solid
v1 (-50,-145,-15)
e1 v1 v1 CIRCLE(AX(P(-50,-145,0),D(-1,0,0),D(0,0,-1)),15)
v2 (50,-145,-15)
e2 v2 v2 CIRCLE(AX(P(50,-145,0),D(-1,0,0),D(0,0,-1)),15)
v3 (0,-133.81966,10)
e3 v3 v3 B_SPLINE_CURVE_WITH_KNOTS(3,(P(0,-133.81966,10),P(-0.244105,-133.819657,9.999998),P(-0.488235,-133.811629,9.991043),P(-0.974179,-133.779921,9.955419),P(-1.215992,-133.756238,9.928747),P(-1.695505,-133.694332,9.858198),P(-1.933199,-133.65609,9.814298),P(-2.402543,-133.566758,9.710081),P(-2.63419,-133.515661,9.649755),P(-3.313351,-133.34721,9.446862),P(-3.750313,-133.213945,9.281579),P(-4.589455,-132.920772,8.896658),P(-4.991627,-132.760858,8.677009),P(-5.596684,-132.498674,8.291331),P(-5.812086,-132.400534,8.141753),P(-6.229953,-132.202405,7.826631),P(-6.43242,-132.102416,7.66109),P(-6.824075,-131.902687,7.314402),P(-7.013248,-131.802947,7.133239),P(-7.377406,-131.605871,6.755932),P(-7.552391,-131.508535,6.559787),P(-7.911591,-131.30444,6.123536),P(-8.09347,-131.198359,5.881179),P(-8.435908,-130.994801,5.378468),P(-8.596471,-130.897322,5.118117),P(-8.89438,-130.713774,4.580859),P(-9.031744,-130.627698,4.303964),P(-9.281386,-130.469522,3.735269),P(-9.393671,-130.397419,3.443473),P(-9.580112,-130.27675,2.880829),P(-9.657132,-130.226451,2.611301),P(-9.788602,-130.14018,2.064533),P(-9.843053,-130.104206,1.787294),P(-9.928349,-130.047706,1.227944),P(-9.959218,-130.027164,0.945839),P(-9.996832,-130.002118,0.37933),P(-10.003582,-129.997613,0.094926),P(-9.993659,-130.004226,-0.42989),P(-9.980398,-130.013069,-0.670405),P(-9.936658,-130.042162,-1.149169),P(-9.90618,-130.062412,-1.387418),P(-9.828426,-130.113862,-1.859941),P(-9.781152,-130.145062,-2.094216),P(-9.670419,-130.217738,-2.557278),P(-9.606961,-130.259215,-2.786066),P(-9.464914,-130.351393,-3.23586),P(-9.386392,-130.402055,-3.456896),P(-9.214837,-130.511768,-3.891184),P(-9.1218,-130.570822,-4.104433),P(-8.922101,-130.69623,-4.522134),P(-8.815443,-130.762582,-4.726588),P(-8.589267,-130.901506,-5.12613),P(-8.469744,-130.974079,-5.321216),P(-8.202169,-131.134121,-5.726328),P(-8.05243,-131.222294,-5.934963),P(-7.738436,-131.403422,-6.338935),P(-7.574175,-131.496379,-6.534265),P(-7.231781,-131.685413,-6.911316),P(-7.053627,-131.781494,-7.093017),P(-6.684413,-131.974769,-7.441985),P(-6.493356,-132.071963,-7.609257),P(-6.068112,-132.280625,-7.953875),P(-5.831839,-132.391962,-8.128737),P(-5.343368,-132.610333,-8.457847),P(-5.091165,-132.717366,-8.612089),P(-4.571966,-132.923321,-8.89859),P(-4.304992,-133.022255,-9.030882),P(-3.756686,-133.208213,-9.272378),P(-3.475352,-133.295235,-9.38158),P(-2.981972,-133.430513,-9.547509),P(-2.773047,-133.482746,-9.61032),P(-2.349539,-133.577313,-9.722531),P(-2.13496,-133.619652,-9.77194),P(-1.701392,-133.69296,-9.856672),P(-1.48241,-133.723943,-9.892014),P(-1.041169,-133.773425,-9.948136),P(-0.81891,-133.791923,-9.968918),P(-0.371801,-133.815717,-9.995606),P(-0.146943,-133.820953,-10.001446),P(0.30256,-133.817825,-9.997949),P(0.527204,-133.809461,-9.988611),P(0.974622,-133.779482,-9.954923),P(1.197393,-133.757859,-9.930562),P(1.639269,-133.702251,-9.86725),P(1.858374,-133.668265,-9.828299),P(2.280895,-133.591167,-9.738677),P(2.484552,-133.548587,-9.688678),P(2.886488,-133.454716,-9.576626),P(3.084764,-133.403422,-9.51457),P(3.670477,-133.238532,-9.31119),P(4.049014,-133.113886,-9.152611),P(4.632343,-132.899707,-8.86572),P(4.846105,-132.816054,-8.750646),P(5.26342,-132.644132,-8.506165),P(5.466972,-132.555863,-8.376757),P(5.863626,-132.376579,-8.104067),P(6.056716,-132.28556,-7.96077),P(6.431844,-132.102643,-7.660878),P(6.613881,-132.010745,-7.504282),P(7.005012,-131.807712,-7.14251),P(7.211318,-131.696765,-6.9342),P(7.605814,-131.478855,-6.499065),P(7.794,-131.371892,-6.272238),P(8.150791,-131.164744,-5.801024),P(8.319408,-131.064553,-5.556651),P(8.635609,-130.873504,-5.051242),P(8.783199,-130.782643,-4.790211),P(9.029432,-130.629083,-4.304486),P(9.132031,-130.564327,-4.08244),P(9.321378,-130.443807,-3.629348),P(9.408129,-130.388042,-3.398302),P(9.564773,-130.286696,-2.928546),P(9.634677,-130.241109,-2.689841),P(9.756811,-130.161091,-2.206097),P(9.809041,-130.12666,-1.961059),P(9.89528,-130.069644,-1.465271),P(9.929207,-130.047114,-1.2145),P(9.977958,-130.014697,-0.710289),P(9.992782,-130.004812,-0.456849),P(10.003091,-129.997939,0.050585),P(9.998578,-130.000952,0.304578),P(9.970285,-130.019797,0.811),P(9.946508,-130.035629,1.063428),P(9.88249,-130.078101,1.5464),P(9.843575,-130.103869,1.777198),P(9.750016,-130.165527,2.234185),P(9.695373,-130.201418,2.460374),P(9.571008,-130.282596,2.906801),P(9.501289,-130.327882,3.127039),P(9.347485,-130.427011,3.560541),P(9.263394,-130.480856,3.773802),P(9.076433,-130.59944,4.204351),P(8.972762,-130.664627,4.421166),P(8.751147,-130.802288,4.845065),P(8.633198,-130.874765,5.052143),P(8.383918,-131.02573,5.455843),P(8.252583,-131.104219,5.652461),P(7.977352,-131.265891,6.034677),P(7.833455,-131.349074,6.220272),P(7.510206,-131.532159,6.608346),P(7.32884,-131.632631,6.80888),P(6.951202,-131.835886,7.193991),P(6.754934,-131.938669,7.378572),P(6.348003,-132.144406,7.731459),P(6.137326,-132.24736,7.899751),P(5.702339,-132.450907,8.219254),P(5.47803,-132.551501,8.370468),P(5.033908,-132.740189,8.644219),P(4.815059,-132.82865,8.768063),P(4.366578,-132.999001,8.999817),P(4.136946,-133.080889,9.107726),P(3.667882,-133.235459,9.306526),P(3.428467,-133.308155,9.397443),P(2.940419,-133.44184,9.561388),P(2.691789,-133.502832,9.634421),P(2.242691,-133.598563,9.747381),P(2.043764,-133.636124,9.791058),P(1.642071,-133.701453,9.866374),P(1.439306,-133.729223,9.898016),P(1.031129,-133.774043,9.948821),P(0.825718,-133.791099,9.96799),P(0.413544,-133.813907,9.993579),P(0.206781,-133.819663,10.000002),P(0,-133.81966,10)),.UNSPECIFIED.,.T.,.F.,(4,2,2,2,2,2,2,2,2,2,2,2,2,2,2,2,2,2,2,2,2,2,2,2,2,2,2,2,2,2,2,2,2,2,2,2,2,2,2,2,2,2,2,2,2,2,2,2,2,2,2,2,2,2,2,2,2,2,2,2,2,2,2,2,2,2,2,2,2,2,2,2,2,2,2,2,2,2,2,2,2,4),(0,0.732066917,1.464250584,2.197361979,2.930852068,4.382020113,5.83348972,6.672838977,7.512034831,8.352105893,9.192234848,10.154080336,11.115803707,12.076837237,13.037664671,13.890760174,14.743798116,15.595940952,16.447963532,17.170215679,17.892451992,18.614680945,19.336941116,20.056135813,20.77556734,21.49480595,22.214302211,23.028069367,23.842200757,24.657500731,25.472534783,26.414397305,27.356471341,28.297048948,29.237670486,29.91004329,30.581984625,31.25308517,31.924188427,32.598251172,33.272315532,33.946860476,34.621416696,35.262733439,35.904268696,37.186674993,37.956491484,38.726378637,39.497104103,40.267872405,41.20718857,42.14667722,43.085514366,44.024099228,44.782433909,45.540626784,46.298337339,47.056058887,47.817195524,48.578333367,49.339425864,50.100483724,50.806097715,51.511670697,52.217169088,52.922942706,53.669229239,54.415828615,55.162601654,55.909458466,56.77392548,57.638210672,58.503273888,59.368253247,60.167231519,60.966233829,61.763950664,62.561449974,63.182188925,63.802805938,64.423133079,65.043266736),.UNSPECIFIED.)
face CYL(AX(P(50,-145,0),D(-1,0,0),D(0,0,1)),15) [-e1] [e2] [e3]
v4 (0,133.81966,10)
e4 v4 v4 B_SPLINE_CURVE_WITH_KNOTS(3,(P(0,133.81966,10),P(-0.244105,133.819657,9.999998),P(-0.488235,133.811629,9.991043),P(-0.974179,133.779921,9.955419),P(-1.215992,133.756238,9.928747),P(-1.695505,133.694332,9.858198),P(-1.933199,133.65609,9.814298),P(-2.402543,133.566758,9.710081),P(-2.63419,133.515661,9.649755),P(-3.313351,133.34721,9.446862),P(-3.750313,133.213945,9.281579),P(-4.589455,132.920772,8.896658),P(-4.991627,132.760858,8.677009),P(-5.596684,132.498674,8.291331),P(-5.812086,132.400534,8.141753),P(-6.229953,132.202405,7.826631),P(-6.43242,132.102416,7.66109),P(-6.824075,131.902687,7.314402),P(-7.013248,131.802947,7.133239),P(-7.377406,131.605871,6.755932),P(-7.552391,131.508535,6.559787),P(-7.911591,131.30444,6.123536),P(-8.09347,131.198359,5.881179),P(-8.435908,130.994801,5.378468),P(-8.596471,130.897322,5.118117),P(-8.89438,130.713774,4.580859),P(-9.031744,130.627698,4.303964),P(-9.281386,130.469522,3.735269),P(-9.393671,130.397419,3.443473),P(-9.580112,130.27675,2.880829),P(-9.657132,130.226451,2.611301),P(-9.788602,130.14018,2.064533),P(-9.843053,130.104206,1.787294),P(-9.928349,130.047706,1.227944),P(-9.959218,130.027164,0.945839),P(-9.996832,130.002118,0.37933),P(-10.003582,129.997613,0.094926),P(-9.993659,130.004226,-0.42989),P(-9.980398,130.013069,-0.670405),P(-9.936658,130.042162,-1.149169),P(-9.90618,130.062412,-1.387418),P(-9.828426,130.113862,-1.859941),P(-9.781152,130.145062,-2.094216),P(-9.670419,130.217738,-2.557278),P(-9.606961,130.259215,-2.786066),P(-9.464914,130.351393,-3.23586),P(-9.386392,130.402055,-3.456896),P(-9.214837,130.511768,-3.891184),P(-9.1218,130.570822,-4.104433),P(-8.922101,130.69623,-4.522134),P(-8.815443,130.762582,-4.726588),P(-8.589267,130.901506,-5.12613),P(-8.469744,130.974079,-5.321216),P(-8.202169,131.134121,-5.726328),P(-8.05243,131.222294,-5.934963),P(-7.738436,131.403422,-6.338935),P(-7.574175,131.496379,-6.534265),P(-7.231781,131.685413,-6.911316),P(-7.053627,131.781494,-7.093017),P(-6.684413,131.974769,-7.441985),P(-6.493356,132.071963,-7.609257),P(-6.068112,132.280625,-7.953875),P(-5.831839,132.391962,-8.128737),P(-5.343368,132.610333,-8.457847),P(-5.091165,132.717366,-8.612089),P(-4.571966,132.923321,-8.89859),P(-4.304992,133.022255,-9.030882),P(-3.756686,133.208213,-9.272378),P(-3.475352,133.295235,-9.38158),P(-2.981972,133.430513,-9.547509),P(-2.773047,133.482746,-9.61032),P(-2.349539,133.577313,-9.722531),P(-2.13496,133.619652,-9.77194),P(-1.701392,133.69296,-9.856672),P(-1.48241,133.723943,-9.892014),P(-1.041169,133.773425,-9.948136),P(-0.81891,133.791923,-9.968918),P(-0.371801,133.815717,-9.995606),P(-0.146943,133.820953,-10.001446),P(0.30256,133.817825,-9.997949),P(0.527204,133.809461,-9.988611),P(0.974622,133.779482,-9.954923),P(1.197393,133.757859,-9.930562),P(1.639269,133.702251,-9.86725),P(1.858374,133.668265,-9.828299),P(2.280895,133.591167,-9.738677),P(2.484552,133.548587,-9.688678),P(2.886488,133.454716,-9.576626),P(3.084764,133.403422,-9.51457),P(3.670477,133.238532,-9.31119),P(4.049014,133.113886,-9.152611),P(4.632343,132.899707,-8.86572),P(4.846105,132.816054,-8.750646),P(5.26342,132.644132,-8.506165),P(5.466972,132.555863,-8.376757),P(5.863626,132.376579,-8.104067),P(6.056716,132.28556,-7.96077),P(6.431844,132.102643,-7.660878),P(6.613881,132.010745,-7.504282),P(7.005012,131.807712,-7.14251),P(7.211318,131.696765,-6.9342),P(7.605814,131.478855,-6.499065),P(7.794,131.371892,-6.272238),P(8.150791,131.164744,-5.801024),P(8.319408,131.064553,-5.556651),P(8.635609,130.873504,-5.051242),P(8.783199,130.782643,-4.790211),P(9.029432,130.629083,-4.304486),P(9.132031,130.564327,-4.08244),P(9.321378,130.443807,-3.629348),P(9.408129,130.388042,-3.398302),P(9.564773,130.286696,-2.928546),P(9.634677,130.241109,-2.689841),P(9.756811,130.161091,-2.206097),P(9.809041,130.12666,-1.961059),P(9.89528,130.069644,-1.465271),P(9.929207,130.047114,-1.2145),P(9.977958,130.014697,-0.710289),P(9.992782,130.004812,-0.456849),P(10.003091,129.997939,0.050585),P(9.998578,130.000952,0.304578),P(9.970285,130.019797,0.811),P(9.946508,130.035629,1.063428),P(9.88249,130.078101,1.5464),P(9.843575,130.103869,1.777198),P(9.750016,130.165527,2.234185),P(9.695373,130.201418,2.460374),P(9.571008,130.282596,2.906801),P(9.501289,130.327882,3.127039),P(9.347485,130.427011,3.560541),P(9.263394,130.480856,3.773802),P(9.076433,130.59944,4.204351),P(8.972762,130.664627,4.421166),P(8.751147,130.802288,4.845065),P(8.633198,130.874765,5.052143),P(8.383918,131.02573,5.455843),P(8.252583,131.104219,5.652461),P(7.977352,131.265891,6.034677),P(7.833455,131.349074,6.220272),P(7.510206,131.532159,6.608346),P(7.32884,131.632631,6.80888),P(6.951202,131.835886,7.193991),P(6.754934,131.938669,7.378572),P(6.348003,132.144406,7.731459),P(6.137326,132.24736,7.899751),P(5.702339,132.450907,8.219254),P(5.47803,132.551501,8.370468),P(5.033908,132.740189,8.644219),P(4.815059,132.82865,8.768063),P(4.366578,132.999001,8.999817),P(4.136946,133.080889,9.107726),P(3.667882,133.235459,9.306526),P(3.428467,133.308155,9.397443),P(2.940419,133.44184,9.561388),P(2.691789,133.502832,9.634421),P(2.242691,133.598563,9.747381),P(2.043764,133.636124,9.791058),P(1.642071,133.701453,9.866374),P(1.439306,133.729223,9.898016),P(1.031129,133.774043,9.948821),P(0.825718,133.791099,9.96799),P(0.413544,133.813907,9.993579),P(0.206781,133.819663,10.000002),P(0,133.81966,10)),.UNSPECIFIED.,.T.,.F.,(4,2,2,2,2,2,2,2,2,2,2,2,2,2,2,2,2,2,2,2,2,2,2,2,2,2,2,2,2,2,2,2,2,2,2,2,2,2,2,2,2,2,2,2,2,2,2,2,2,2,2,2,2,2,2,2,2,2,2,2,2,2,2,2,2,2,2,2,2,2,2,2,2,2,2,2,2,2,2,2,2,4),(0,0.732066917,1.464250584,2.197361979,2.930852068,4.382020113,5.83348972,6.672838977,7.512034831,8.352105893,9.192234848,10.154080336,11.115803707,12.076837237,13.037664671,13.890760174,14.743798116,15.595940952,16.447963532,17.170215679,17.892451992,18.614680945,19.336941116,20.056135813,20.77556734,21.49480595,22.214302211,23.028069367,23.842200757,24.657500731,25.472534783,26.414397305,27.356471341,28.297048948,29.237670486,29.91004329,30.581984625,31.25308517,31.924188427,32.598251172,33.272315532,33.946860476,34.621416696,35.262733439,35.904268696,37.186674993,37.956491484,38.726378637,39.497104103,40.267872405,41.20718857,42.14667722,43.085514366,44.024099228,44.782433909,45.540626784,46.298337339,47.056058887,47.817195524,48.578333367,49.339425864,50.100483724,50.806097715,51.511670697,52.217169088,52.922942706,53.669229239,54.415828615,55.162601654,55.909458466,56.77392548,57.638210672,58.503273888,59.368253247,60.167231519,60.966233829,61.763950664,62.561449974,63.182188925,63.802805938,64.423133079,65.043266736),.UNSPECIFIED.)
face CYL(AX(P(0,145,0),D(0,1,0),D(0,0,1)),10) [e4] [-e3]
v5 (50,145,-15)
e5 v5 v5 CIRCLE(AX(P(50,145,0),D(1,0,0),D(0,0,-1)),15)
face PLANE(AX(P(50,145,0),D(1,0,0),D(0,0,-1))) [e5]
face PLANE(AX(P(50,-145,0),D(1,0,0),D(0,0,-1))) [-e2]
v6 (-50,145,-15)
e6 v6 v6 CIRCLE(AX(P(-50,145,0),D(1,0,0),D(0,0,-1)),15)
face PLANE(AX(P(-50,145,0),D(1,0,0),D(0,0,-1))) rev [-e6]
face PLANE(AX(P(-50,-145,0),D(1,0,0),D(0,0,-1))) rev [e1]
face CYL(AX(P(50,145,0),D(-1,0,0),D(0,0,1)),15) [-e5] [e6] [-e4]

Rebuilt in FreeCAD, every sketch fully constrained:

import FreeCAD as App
import Part
import Sketcher
from FreeCAD import Vector

doc = App.newDocument("Part")
body = doc.addObject("PartDesign::Body", "Body")

sketch1 = body.newObject("Sketcher::SketchObject", "Sketch")
sketch1.AttachmentSupport = (doc.getObject("XY_Plane"), [""])
sketch1.MapMode = "FlatFace"
sketch1.addGeometry([
    Part.LineSegment(Vector(-10, 145, 0), Vector(-10, -145, 0)),
    Part.LineSegment(Vector(-10, -145, 0), Vector(0, -145, 0)),
    Part.LineSegment(Vector(0, -145, 0), Vector(0, 145, 0)),
    Part.LineSegment(Vector(0, 145, 0), Vector(-10, 145, 0)),
], False)
sketch1.addConstraint([
    Sketcher.Constraint("Coincident", 0, 2, 1, 1),
    Sketcher.Constraint("Coincident", 1, 2, 2, 1),
    Sketcher.Constraint("Coincident", 2, 2, 3, 1),
    Sketcher.Constraint("Coincident", 3, 2, 0, 1),
    Sketcher.Constraint("Vertical", 0),
    Sketcher.Constraint("Horizontal", 1),
    Sketcher.Constraint("Vertical", 2),
    Sketcher.Constraint("Horizontal", 3),
    Sketcher.Constraint("Symmetric", 1, 2, 2, 2, -1, 1),
    Sketcher.Constraint("DistanceX", 1, 1, 1, 2, 10.0),
    Sketcher.Constraint("DistanceY", 0, 2, 0, 1, 290.0),
])
revolution = body.newObject("PartDesign::Revolution", "Revolution")
revolution.Profile = sketch1
revolution.ReferenceAxis = (sketch1, ["V_Axis"])
revolution.Angle = 360

sketch2 = body.newObject("Sketcher::SketchObject", "Sketch001")
sketch2.AttachmentSupport = (doc.getObject("YZ_Plane"), [""])
sketch2.MapMode = "FlatFace"
sketch2.addGeometry(Part.Circle(Vector(145, 0, 0), Vector(0, 0, 1), 15), False)
sketch2.addConstraint([
    Sketcher.Constraint("PointOnObject", 0, 3, -1),
    Sketcher.Constraint("Diameter", 0, 30.0),
    Sketcher.Constraint("DistanceX", -1, 1, 0, 3, 145.0),
])
pad1 = body.newObject("PartDesign::Pad", "Pad")
pad1.Profile = sketch2
pad1.Length = 100
pad1.Midplane = True
doc.recompute()

mirrored = body.newObject("PartDesign::Mirrored", "Mirrored")
mirrored.Originals = [pad1]
mirrored.MirrorPlane = (doc.getObject("XZ_Plane"), [""])
body.Tip = mirrored

doc.recompute()
